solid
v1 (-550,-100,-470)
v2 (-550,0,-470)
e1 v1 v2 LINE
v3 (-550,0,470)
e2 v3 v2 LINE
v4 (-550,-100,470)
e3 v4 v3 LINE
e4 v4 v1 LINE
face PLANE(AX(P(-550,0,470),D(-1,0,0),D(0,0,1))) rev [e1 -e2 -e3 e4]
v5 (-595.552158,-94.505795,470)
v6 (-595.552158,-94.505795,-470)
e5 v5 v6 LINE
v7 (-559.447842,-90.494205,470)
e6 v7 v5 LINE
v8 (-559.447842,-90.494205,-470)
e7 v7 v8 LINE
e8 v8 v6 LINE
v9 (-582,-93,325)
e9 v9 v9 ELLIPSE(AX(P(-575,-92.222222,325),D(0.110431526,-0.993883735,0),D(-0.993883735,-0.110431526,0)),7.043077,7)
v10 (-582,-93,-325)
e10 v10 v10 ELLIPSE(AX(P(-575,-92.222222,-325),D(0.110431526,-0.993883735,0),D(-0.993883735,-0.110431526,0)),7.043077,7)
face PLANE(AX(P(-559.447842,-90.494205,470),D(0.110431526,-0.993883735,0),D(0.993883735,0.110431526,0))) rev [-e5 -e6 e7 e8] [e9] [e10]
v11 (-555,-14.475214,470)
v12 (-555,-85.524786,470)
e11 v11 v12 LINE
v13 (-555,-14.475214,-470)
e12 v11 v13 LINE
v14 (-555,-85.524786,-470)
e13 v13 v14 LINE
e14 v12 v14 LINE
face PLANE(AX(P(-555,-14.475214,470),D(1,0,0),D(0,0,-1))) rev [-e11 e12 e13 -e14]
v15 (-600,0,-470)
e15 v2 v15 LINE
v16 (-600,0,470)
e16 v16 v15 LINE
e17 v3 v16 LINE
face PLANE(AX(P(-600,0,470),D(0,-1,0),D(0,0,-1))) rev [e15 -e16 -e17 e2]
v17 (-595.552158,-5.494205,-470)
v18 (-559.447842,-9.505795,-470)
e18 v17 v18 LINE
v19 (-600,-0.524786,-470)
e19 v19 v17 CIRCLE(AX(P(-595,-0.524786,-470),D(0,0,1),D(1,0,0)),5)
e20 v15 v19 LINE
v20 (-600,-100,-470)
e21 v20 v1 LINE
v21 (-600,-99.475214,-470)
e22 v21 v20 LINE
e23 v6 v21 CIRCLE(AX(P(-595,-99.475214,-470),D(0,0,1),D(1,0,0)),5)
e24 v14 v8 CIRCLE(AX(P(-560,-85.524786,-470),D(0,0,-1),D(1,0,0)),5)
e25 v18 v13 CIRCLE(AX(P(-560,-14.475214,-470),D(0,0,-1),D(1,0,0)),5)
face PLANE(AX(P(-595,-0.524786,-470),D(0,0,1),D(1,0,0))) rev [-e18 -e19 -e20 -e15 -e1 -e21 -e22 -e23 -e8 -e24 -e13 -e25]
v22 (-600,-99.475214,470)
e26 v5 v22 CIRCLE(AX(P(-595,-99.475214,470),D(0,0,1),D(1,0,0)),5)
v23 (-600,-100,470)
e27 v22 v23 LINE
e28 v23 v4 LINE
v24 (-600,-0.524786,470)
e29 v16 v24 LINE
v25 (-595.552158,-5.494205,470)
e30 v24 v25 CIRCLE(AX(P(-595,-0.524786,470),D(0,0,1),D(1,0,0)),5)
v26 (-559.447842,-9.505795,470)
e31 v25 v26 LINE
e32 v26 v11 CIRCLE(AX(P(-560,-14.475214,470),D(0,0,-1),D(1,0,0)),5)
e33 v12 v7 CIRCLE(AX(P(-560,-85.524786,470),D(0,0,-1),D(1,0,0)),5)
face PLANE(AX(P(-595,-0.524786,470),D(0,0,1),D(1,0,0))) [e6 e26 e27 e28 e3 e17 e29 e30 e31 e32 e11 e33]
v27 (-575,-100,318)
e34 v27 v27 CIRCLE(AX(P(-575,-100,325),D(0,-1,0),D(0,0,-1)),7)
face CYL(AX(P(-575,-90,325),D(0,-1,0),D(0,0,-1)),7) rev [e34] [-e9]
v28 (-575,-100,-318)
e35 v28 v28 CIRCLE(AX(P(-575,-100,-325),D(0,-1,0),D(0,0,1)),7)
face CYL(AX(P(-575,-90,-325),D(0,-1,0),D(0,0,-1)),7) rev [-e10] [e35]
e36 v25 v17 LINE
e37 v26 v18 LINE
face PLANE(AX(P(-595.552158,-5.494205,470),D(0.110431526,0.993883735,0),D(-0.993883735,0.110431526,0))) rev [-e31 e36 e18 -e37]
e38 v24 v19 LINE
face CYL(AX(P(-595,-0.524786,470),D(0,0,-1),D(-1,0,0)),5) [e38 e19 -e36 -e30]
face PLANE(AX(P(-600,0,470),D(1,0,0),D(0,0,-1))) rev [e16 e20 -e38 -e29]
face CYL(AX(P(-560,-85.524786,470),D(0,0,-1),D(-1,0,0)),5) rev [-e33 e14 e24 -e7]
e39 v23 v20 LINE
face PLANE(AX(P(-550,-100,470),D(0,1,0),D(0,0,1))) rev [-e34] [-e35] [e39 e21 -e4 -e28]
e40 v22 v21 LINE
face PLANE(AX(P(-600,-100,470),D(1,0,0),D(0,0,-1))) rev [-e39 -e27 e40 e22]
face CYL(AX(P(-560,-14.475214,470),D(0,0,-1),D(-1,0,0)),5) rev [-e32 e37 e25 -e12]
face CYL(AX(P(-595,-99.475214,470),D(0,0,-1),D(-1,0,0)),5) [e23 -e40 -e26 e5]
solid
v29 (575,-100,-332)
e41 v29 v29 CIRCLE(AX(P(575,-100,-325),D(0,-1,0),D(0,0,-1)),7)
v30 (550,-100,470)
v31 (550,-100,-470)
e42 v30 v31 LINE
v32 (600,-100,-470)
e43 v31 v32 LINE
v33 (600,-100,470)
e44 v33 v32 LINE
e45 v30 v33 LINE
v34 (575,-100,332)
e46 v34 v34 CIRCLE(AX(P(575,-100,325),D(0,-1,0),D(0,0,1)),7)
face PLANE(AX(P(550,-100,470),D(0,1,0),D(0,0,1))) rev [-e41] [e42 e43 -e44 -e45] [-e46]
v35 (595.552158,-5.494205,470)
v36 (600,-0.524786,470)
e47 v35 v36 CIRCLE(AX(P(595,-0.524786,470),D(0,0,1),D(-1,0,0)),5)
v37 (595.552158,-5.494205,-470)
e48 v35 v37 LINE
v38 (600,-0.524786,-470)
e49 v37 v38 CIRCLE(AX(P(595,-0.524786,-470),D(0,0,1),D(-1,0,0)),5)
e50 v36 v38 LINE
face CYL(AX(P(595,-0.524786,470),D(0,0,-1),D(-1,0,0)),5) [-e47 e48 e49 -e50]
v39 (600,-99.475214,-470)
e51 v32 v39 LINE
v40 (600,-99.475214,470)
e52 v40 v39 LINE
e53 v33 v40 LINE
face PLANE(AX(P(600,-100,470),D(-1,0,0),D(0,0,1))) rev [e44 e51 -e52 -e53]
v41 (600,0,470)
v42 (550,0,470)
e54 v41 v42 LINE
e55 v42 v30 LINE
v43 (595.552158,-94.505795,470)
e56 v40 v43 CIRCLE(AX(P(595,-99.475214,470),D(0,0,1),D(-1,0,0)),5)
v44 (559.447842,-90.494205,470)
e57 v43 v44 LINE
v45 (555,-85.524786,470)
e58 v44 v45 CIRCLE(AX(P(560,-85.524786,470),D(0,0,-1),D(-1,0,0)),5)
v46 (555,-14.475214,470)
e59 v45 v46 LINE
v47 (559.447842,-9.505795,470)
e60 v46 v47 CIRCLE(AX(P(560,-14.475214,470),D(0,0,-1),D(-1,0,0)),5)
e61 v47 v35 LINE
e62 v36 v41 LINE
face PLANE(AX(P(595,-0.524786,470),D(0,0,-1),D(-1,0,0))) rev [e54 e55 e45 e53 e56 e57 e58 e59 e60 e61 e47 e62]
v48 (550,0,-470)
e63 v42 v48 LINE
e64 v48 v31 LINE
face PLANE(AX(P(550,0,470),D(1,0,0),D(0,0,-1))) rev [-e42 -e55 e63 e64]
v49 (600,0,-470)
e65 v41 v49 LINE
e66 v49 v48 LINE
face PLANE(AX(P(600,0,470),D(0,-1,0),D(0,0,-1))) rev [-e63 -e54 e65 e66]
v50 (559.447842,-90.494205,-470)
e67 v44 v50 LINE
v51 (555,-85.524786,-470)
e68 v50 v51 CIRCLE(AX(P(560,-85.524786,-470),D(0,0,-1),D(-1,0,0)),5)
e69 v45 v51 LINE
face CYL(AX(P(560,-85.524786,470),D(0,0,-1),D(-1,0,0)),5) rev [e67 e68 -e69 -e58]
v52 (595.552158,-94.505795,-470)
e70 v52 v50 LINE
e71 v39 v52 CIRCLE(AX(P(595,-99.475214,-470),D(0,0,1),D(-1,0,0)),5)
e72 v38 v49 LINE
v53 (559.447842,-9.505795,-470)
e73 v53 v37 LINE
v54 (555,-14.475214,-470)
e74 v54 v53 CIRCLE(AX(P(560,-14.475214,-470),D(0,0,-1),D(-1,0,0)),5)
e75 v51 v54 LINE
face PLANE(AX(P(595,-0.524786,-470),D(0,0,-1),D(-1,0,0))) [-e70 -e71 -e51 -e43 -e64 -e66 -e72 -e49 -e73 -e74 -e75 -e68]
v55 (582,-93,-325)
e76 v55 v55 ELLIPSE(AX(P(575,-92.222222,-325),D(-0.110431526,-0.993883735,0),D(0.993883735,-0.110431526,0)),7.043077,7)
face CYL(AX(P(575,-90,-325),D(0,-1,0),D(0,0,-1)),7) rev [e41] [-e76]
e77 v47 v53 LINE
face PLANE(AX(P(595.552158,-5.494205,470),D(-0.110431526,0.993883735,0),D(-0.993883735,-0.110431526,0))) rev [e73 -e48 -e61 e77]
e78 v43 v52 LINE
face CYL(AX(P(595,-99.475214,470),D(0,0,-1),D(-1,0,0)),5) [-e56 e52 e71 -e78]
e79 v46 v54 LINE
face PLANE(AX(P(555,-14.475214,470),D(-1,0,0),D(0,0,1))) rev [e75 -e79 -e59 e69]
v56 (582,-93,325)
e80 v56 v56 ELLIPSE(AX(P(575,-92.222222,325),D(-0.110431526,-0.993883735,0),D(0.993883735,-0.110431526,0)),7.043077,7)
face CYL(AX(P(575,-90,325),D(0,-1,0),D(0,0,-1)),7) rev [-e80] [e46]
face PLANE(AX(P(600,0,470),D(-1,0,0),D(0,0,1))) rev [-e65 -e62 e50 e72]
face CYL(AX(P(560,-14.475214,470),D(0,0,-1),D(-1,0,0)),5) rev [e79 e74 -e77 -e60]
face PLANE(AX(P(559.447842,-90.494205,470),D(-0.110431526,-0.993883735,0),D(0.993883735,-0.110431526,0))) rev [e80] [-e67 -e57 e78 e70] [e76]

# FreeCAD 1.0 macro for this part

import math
import FreeCAD as App
import Part
import Sketcher

doc = App.newDocument("Part")
body = doc.addObject("PartDesign::Body", "Body")

sketch1 = body.newObject("Sketcher::SketchObject", "Sketch")
sketch1.AttachmentSupport = (doc.getObject("XY_Plane"), [""])
sketch1.MapMode = "FlatFace"
sketch1.addGeometry([
    Part.LineSegment(App.Vector(-550, 0, 0), App.Vector(-600, 0, 0)),
    Part.LineSegment(App.Vector(-600, 0, 0), App.Vector(-600, -0.5, 0)),
    Part.ArcOfCircle(Part.Circle(App.Vector(-595, -0.5, 0), App.Vector(0, 0, 1), 5), math.radians(-180), math.radians(-96)),
    Part.LineSegment(App.Vector(-595.6, -5.5, 0), App.Vector(-559.4, -9.5, 0)),
    Part.ArcOfCircle(Part.Circle(App.Vector(-560, -14.5, 0), App.Vector(0, 0, 1), 5), math.radians(0), math.radians(84)),
    Part.LineSegment(App.Vector(-555, -14.5, 0), App.Vector(-555, -85.5, 0)),
    Part.ArcOfCircle(Part.Circle(App.Vector(-560, -85.5, 0), App.Vector(0, 0, 1), 5), math.radians(-84), math.radians(0)),
    Part.LineSegment(App.Vector(-559.4, -90.5, 0), App.Vector(-595.6, -94.5, 0)),
    Part.ArcOfCircle(Part.Circle(App.Vector(-595, -99.5, 0), App.Vector(0, 0, 1), 5), math.radians(96), math.radians(180)),
    Part.LineSegment(App.Vector(-600, -99.5, 0), App.Vector(-600, -100, 0)),
    Part.LineSegment(App.Vector(-600, -100, 0), App.Vector(-550, -100, 0)),
    Part.LineSegment(App.Vector(-550, -100, 0), App.Vector(-550, 0, 0)),
], False)
sketch1.addConstraint([
    Sketcher.Constraint("Coincident", 0, 2, 1, 1),
    Sketcher.Constraint("Tangent", 1, 2, 2, 1),
    Sketcher.Constraint("Tangent", 2, 2, 3, 1),
    Sketcher.Constraint("Tangent", 3, 2, 4, 2),
    Sketcher.Constraint("Tangent", 4, 1, 5, 1),
    Sketcher.Constraint("Tangent", 5, 2, 6, 2),
    Sketcher.Constraint("Tangent", 6, 1, 7, 1),
    Sketcher.Constraint("Tangent", 7, 2, 8, 1),
    Sketcher.Constraint("Tangent", 8, 2, 9, 1),
    Sketcher.Constraint("Coincident", 9, 2, 10, 1),
    Sketcher.Constraint("Coincident", 10, 2, 11, 1),
    Sketcher.Constraint("Coincident", 11, 2, 0, 1),
    Sketcher.Constraint("Horizontal", 0),
    Sketcher.Constraint("Vertical", 1),
    Sketcher.Constraint("Vertical", 5),
    Sketcher.Constraint("Vertical", 9),
    Sketcher.Constraint("Horizontal", 10),
    Sketcher.Constraint("Vertical", 11),
    Sketcher.Constraint("Equal", 2, 4),
    Sketcher.Constraint("Equal", 4, 6),
    Sketcher.Constraint("Equal", 6, 8),
    Sketcher.Constraint("PointOnObject", 0, 2, -1),
    Sketcher.Constraint("Vertical", 2, 3, 8, 3),
    Sketcher.Constraint("Vertical", 3, 2, 6, 1),
    Sketcher.Constraint("Equal", 1, 9),
    Sketcher.Constraint("Radius", 2, 5.0),
    Sketcher.Constraint("DistanceX", 0, 2, 0, 1, 50.0),
    Sketcher.Constraint("DistanceY", 11, 1, 11, 2, 100.0),
    Sketcher.Constraint("DistanceX", 2, 3, -1, 1, 595.0),
    Sketcher.Constraint("DistanceX", 4, 3, -1, 1, 560.0),
    Sketcher.Constraint("DistanceY", 6, 3, 2, 3, 85.0),
    Sketcher.Constraint("DistanceY", 1, 2, 1, 1, 0.524786),
])
pad1 = body.newObject("PartDesign::Pad", "Pad")
pad1.Profile = sketch1
pad1.Length = 940
pad1.Midplane = True
body2 = doc.addObject("PartDesign::Body", "Body001")

sketch2 = body2.newObject("Sketcher::SketchObject", "Sketch001")
sketch2.AttachmentSupport = (doc.getObject("XY_Plane001"), [""])
sketch2.MapMode = "FlatFace"
sketch2.addGeometry([
    Part.LineSegment(App.Vector(600, 0, 0), App.Vector(550, 0, 0)),
    Part.LineSegment(App.Vector(550, 0, 0), App.Vector(550, -100, 0)),
    Part.LineSegment(App.Vector(550, -100, 0), App.Vector(600, -100, 0)),
    Part.LineSegment(App.Vector(600, -100, 0), App.Vector(600, -99.5, 0)),
    Part.ArcOfCircle(Part.Circle(App.Vector(595, -99.5, 0), App.Vector(0, 0, 1), 5), math.radians(0), math.radians(84)),
    Part.LineSegment(App.Vector(595.6, -94.5, 0), App.Vector(559.4, -90.5, 0)),
    Part.ArcOfCircle(Part.Circle(App.Vector(560, -85.5, 0), App.Vector(0, 0, 1), 5), math.radians(-180), math.radians(-96)),
    Part.LineSegment(App.Vector(555, -85.5, 0), App.Vector(555, -14.5, 0)),
    Part.ArcOfCircle(Part.Circle(App.Vector(560, -14.5, 0), App.Vector(0, 0, 1), 5), math.radians(96), math.radians(180)),
    Part.LineSegment(App.Vector(559.4, -9.5, 0), App.Vector(595.6, -5.5, 0)),
    Part.ArcOfCircle(Part.Circle(App.Vector(595, -0.5, 0), App.Vector(0, 0, 1), 5), math.radians(-84), math.radians(0)),
    Part.LineSegment(App.Vector(600, -0.5, 0), App.Vector(600, 0, 0)),
], False)
sketch2.addConstraint([
    Sketcher.Constraint("Coincident", 0, 2, 1, 1),
    Sketcher.Constraint("Coincident", 1, 2, 2, 1),
    Sketcher.Constraint("Coincident", 2, 2, 3, 1),
    Sketcher.Constraint("Tangent", 3, 2, 4, 1),
    Sketcher.Constraint("Tangent", 4, 2, 5, 1),
    Sketcher.Constraint("Tangent", 5, 2, 6, 2),
    Sketcher.Constraint("Tangent", 6, 1, 7, 1),
    Sketcher.Constraint("Tangent", 7, 2, 8, 2),
    Sketcher.Constraint("Tangent", 8, 1, 9, 1),
    Sketcher.Constraint("Tangent", 9, 2, 10, 1),
    Sketcher.Constraint("Tangent", 10, 2, 11, 1),
    Sketcher.Constraint("Coincident", 11, 2, 0, 1),
    Sketcher.Constraint("Horizontal", 0),
    Sketcher.Constraint("Vertical", 1),
    Sketcher.Constraint("Horizontal", 2),
    Sketcher.Constraint("Vertical", 3),
    Sketcher.Constraint("Vertical", 7),
    Sketcher.Constraint("Vertical", 11),
    Sketcher.Constraint("Equal", 4, 6),
    Sketcher.Constraint("Equal", 6, 8),
    Sketcher.Constraint("Equal", 8, 10),
    Sketcher.Constraint("PointOnObject", 0, 2, -1),
    Sketcher.Constraint("Vertical", 4, 3, 10, 3),
    Sketcher.Constraint("Vertical", 5, 2, 8, 1),
    Sketcher.Constraint("Equal", 3, 11),
    Sketcher.Constraint("Radius", 4, 5.0),
    Sketcher.Constraint("DistanceX", 0, 2, 0, 1, 50.0),
    Sketcher.Constraint("DistanceY", 1, 2, 1, 1, 100.0),
    Sketcher.Constraint("DistanceX", -1, 1, 4, 3, 595.0),
    Sketcher.Constraint("DistanceX", -1, 1, 6, 3, 560.0),
    Sketcher.Constraint("DistanceY", 4, 3, 8, 3, 85.0),
    Sketcher.Constraint("DistanceY", 3, 1, 3, 2, 0.524786),
])
pad2 = body2.newObject("PartDesign::Pad", "Pad001")
pad2.Profile = sketch2
pad2.Length = 940
pad2.Midplane = True
body3 = doc.addObject("PartDesign::Body", "Body002")
body3.AllowCompound = True

sketch3 = body3.newObject("Sketcher::SketchObject", "Sketch002")
sketch3.AttachmentSupport = (doc.getObject("XZ_Plane002"), [""])
sketch3.MapMode = "FlatFace"
sketch3.AttachmentOffset = App.Placement(App.Vector(0, 0, 100), App.Rotation())
sketch3.addGeometry([
    Part.Circle(App.Vector(-575, 325, 0), App.Vector(0, 0, 1), 7),
    Part.Circle(App.Vector(-575, -325, 0), App.Vector(0, 0, 1), 7),
    Part.Circle(App.Vector(575, -325, 0), App.Vector(0, 0, 1), 7),
    Part.Circle(App.Vector(575, 325, 0), App.Vector(0, 0, 1), 7),
], False)
sketch3.addConstraint([
    Sketcher.Constraint("Equal", 0, 1),
    Sketcher.Constraint("Equal", 1, 2),
    Sketcher.Constraint("Equal", 2, 3),
    Sketcher.Constraint("Symmetric", 0, 3, 2, 3, -1, 1),
    Sketcher.Constraint("Symmetric", 1, 3, 3, 3, -1, 1),
    Sketcher.Constraint("Symmetric", 1, 3, 2, 3, -2),
    Sketcher.Constraint("Diameter", 0, 14.0),
    Sketcher.Constraint("DistanceX", 0, 3, -1, 1, 575.0),
    Sketcher.Constraint("DistanceY", -1, 1, 0, 3, 325.0),
])
pad3 = body3.newObject("PartDesign::Pad", "Pad002")
pad3.Profile = sketch3
pad3.Length = 10
pad3.Reversed = True
doc.recompute()

body4 = doc.addObject("PartDesign::Body", "Body003")
body4.BaseFeature = body3
boolean = body.newObject("PartDesign::Boolean", "Boolean")
boolean.Type = "Cut"
boolean.addObjects([body4])
doc.recompute()

boolean2 = body2.newObject("PartDesign::Boolean", "Boolean001")
boolean2.Type = "Cut"
boolean2.addObjects([body3])

doc.recompute()
